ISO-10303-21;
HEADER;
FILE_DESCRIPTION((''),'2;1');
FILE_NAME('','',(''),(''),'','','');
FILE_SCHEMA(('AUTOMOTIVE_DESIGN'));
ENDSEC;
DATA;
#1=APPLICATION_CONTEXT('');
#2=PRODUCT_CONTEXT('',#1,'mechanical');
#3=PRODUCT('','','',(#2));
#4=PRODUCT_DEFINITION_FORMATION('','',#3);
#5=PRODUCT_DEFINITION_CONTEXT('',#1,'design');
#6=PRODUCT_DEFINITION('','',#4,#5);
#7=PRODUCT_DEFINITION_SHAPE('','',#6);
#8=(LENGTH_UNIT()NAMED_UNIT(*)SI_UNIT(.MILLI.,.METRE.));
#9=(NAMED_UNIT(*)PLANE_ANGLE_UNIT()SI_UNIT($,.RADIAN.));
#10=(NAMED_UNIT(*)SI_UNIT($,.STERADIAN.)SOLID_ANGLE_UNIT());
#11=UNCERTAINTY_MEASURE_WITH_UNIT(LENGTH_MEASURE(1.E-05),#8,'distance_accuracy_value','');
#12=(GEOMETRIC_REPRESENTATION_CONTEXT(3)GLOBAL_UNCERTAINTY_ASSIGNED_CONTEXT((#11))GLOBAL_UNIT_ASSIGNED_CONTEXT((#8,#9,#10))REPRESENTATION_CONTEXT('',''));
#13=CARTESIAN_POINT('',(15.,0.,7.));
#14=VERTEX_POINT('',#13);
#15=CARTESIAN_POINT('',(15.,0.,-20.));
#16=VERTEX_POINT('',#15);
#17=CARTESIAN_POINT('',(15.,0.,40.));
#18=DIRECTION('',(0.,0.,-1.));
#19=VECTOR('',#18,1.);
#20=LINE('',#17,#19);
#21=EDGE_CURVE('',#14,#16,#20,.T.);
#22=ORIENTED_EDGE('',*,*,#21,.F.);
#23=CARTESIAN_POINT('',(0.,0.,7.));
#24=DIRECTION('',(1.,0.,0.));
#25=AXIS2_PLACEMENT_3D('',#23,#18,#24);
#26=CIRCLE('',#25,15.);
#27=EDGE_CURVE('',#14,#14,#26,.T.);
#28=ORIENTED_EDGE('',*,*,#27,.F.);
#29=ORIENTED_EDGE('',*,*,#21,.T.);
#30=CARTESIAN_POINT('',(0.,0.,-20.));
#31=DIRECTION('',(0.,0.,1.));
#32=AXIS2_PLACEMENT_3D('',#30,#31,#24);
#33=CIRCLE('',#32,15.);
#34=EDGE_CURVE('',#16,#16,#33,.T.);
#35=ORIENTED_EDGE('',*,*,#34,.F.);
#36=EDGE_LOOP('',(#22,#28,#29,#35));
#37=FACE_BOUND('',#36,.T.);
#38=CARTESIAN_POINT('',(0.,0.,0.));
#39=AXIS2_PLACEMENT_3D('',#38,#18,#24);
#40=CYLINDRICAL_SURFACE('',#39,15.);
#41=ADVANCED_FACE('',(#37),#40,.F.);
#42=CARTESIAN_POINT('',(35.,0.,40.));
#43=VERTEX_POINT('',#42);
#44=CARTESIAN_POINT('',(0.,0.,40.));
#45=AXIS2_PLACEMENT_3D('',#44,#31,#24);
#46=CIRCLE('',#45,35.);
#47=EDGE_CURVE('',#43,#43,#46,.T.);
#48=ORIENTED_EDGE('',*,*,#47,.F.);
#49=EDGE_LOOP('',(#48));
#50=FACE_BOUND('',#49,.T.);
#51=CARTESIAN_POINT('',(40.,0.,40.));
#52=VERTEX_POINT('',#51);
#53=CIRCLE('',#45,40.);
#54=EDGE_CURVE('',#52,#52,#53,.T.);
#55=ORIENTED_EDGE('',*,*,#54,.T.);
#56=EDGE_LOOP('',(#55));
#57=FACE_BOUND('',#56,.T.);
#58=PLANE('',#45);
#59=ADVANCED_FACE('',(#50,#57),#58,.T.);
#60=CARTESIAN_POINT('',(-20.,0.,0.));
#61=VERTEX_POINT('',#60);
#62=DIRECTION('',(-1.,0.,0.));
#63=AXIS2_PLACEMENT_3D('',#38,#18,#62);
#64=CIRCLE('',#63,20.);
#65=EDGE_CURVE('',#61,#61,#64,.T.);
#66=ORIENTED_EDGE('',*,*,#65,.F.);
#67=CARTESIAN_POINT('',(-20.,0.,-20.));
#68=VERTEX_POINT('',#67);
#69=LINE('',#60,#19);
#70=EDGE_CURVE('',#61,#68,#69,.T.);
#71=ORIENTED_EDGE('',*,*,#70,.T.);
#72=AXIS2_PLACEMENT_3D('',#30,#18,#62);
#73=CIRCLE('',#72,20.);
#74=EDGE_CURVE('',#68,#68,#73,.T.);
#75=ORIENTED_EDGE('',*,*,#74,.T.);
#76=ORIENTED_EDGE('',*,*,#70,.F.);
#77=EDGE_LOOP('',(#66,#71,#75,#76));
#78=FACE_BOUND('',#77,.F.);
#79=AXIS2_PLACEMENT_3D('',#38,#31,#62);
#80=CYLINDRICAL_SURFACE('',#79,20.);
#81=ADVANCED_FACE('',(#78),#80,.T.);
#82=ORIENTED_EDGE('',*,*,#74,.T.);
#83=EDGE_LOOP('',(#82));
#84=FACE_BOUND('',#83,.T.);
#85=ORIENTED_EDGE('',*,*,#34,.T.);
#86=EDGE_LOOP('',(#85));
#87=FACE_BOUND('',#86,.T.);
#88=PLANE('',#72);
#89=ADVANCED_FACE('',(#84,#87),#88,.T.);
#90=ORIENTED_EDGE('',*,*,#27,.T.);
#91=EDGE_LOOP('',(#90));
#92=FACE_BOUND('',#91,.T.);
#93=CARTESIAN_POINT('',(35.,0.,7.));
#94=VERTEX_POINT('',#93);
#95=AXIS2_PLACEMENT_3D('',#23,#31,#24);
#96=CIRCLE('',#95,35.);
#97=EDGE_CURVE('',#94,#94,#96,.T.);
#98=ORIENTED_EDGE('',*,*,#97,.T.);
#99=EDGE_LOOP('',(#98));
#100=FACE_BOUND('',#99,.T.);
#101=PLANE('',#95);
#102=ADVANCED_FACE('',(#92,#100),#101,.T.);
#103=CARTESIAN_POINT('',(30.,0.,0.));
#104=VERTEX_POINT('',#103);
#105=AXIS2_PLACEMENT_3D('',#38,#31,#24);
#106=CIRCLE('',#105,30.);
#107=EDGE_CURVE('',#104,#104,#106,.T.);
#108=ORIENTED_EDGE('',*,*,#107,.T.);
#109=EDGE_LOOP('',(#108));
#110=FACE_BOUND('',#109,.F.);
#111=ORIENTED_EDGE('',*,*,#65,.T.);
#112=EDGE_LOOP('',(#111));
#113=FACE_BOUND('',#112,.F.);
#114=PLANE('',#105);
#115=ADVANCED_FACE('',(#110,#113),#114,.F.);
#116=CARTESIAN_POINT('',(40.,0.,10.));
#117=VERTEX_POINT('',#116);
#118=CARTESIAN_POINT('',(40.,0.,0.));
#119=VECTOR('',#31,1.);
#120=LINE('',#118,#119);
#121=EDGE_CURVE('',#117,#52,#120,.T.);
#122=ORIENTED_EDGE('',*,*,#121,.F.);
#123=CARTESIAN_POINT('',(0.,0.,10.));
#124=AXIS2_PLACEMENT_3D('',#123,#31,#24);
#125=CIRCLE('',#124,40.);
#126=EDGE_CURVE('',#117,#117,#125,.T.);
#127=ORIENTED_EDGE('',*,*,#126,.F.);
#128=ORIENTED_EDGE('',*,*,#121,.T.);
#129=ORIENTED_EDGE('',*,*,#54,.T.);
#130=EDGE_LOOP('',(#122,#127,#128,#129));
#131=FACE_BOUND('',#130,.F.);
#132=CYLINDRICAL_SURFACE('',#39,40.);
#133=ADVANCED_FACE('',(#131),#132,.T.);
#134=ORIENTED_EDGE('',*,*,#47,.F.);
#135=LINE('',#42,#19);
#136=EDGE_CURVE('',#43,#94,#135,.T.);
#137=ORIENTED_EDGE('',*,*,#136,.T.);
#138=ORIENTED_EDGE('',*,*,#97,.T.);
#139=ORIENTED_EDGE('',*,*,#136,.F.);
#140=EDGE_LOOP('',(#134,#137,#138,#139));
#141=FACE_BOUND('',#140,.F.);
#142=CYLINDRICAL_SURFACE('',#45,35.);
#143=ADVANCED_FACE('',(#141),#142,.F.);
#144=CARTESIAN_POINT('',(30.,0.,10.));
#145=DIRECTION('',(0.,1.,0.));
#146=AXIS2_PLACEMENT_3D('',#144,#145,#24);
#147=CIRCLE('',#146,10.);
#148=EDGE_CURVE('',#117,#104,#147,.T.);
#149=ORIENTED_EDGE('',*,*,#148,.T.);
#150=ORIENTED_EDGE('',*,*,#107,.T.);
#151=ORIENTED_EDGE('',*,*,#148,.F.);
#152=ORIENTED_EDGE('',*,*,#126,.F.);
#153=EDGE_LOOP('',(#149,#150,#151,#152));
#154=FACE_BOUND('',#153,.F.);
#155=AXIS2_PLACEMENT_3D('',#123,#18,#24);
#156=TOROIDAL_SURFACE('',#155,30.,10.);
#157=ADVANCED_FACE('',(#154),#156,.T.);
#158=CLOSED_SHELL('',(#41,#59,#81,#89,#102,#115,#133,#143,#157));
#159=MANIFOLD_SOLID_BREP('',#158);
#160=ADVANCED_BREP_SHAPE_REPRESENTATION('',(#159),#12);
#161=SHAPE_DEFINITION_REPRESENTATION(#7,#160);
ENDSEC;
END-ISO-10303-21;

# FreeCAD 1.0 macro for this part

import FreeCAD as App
import Part
import Sketcher
from FreeCAD import Vector
Q = App.Units.Quantity


def edges_at(feature, points):
    """Names of the edges that pass closest to the given points."""
    edges = feature.Shape.Edges
    near = lambda p: min(range(len(edges)), key=lambda i: edges[i].distToShape(Part.Vertex(*p))[0])
    return sorted({f"Edge{near(p) + 1}" for p in points})

doc = App.newDocument("Part")
body = doc.addObject("PartDesign::Body", "Body")

# Sketch on XY plane
sketch1 = body.newObject("Sketcher::SketchObject", "Sketch")
sketch1.AttachmentSupport = (doc.getObject("XY_Plane"), [""])
sketch1.MapMode = "FlatFace"
sketch1.addGeometry([
    Part.Circle(Vector(0, 0, 0), Vector(0, 0, 1), 40),
    Part.Circle(Vector(0, 0, 0), Vector(0, 0, 1), 15),
], False)
sketch1.addConstraint([
    Sketcher.Constraint("Coincident", 0, 3, -1, 1),
    Sketcher.Constraint("Coincident", 1, 3, -1, 1),
    Sketcher.Constraint("Diameter", 0, Q("80 mm")),
    Sketcher.Constraint("Diameter", 1, Q("30 mm")),
])
pad1 = body.newObject("PartDesign::Pad", "Pad")
pad1.Profile = sketch1
pad1.Length = 40

# Sketch on XY plane
sketch2 = body.newObject("Sketcher::SketchObject", "Sketch001")
sketch2.AttachmentSupport = (doc.getObject("XY_Plane"), [""])
sketch2.MapMode = "FlatFace"
sketch2.addGeometry(Part.Circle(Vector(0, 0, 0), Vector(0, 0, 1), 20), False)
sketch2.addConstraint([
    Sketcher.Constraint("Coincident", 0, 3, -1, 1),
    Sketcher.Constraint("Diameter", 0, Q("40 mm")),
])
pad2 = body.newObject("PartDesign::Pad", "Pad001")
pad2.Profile = sketch2
pad2.Length = 20
pad2.Reversed = True

# Sketch on XY plane
sketch3 = body.newObject("Sketcher::SketchObject", "Sketch002")
sketch3.AttachmentSupport = (doc.getObject("XY_Plane"), [""])
sketch3.MapMode = "FlatFace"
sketch3.addGeometry(Part.Circle(Vector(0, 0, 0), Vector(0, 0, 1), 15), False)
sketch3.addConstraint([
    Sketcher.Constraint("Coincident", 0, 3, -1, 1),
    Sketcher.Constraint("Diameter", 0, Q("30 mm")),
])
pocket1 = body.newObject("PartDesign::Pocket", "Pocket")
pocket1.Profile = sketch3
pocket1.Length = 20
doc.recompute()

fillet = body.newObject("PartDesign::Fillet", "Fillet")
fillet.Base = (pocket1, edges_at(pocket1, [(-40, 0, 0)]))
fillet.Radius = 10

# Sketch on XY plane
sketch4 = body.newObject("Sketcher::SketchObject", "Sketch003")
sketch4.AttachmentSupport = (doc.getObject("XY_Plane"), [""])
sketch4.MapMode = "FlatFace"
sketch4.AttachmentOffset = App.Placement(Vector(0, 0, 40), App.Rotation())
sketch4.addGeometry(Part.Circle(Vector(0, 0, 0), Vector(0, 0, 1), 35), False)
sketch4.addConstraint([
    Sketcher.Constraint("Coincident", 0, 3, -1, 1),
    Sketcher.Constraint("Diameter", 0, Q("70 mm")),
])
pocket2 = body.newObject("PartDesign::Pocket", "Pocket001")
pocket2.Profile = sketch4
pocket2.Length = 33

doc.recompute()
